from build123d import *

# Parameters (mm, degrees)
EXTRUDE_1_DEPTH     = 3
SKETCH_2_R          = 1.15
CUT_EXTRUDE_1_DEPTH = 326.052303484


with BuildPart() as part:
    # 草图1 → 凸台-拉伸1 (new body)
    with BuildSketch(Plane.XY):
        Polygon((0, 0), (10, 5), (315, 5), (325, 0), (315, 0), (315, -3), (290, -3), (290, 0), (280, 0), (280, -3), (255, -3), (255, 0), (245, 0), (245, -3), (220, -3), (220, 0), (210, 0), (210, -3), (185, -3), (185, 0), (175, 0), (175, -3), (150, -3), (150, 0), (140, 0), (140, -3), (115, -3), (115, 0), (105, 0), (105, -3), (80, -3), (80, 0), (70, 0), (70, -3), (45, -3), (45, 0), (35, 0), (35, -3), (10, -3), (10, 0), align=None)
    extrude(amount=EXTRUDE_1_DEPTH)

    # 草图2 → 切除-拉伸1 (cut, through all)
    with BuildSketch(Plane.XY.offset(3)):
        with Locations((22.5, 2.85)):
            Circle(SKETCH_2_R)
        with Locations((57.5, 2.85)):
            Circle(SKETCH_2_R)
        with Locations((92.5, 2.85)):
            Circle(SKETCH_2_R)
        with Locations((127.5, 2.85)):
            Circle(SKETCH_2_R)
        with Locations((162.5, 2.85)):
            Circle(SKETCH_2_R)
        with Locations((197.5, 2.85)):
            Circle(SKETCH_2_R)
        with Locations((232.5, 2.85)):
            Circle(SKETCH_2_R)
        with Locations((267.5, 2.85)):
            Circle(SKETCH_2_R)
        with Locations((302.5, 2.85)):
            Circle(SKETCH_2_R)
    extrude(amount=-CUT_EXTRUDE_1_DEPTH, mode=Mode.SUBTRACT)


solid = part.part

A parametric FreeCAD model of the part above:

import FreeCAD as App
import Part
import Sketcher

V = App.Vector
Q = App.Units.Quantity

doc = App.newDocument("Part")
params = doc.addObject("Spreadsheet::Sheet", "Params")
for row, (alias, value) in enumerate([
    ("sketch1_width", "10 mm"),
    ("sketch1_width2", "25 mm"),
    ("sketch1_height", "3 mm"),
    ("pad1_length", "3 mm"),
    ("sketch2_diameter", "2.3 mm"),
], start=1):
    params.set(f"A{row}", alias)
    params.set(f"B{row}", "=" + value)
    params.setAlias(f"B{row}", alias)

body = doc.addObject("PartDesign::Body", "Body")

# Sketch on XY plane
sketch1 = body.newObject("Sketcher::SketchObject", "Sketch")
sketch1.AttachmentSupport = (doc.getObject("XY_Plane"), [""])
sketch1.MapMode = "FlatFace"
sketch1.addGeometry([
    Part.LineSegment(V(10, 5, 0), V(0, 0, 0)),  # 0
    Part.LineSegment(V(0, 0, 0), V(10, 0, 0)),  # 1
    Part.LineSegment(V(10, 0, 0), V(10, -3, 0)),  # 2
    Part.LineSegment(V(10, -3, 0), V(35, -3, 0)),  # 3
    Part.LineSegment(V(35, -3, 0), V(35, 0, 0)),  # 4
    Part.LineSegment(V(35, 0, 0), V(45, 0, 0)),  # 5
    Part.LineSegment(V(45, 0, 0), V(45, -3, 0)),  # 6
    Part.LineSegment(V(45, -3, 0), V(70, -3, 0)),  # 7
    Part.LineSegment(V(70, -3, 0), V(70, 0, 0)),  # 8
    Part.LineSegment(V(70, 0, 0), V(80, 0, 0)),  # 9
    Part.LineSegment(V(80, 0, 0), V(80, -3, 0)),  # 10
    Part.LineSegment(V(80, -3, 0), V(105, -3, 0)),  # 11
    Part.LineSegment(V(105, -3, 0), V(105, 0, 0)),  # 12
    Part.LineSegment(V(105, 0, 0), V(115, 0, 0)),  # 13
    Part.LineSegment(V(115, 0, 0), V(115, -3, 0)),  # 14
    Part.LineSegment(V(115, -3, 0), V(140, -3, 0)),  # 15
    Part.LineSegment(V(140, -3, 0), V(140, 0, 0)),  # 16
    Part.LineSegment(V(140, 0, 0), V(150, 0, 0)),  # 17
    Part.LineSegment(V(150, 0, 0), V(150, -3, 0)),  # 18
    Part.LineSegment(V(150, -3, 0), V(175, -3, 0)),  # 19
    Part.LineSegment(V(175, -3, 0), V(175, 0, 0)),  # 20
    Part.LineSegment(V(175, 0, 0), V(185, 0, 0)),  # 21
    Part.LineSegment(V(185, 0, 0), V(185, -3, 0)),  # 22
    Part.LineSegment(V(185, -3, 0), V(210, -3, 0)),  # 23
    Part.LineSegment(V(210, -3, 0), V(210, 0, 0)),  # 24
    Part.LineSegment(V(210, 0, 0), V(220, 0, 0)),  # 25
    Part.LineSegment(V(220, 0, 0), V(220, -3, 0)),  # 26
    Part.LineSegment(V(220, -3, 0), V(245, -3, 0)),  # 27
    Part.LineSegment(V(245, -3, 0), V(245, 0, 0)),  # 28
    Part.LineSegment(V(245, 0, 0), V(255, 0, 0)),  # 29
    Part.LineSegment(V(255, 0, 0), V(255, -3, 0)),  # 30
    Part.LineSegment(V(255, -3, 0), V(280, -3, 0)),  # 31
    Part.LineSegment(V(280, -3, 0), V(280, 0, 0)),  # 32
    Part.LineSegment(V(280, 0, 0), V(290, 0, 0)),  # 33
    Part.LineSegment(V(290, 0, 0), V(290, -3, 0)),  # 34
    Part.LineSegment(V(290, -3, 0), V(315, -3, 0)),  # 35
    Part.LineSegment(V(315, -3, 0), V(315, 0, 0)),  # 36
    Part.LineSegment(V(315, 0, 0), V(325, 0, 0)),  # 37
    Part.LineSegment(V(325, 0, 0), V(315, 5, 0)),  # 38
    Part.LineSegment(V(315, 5, 0), V(10, 5, 0)),  # 39
], False)
sketch1.addConstraint([
    Sketcher.Constraint("Coincident", 0, 2, 1, 1),
    Sketcher.Constraint("Coincident", 1, 2, 2, 1),
    Sketcher.Constraint("Coincident", 2, 2, 3, 1),
    Sketcher.Constraint("Coincident", 3, 2, 4, 1),
    Sketcher.Constraint("Coincident", 4, 2, 5, 1),
    Sketcher.Constraint("Coincident", 5, 2, 6, 1),
    Sketcher.Constraint("Coincident", 6, 2, 7, 1),
    Sketcher.Constraint("Coincident", 7, 2, 8, 1),
    Sketcher.Constraint("Coincident", 8, 2, 9, 1),
    Sketcher.Constraint("Coincident", 9, 2, 10, 1),
    Sketcher.Constraint("Coincident", 10, 2, 11, 1),
    Sketcher.Constraint("Coincident", 11, 2, 12, 1),
    Sketcher.Constraint("Coincident", 12, 2, 13, 1),
    Sketcher.Constraint("Coincident", 13, 2, 14, 1),
    Sketcher.Constraint("Coincident", 14, 2, 15, 1),
    Sketcher.Constraint("Coincident", 15, 2, 16, 1),
    Sketcher.Constraint("Coincident", 16, 2, 17, 1),
    Sketcher.Constraint("Coincident", 17, 2, 18, 1),
    Sketcher.Constraint("Coincident", 18, 2, 19, 1),
    Sketcher.Constraint("Coincident", 19, 2, 20, 1),
    Sketcher.Constraint("Coincident", 20, 2, 21, 1),
    Sketcher.Constraint("Coincident", 21, 2, 22, 1),
    Sketcher.Constraint("Coincident", 22, 2, 23, 1),
    Sketcher.Constraint("Coincident", 23, 2, 24, 1),
    Sketcher.Constraint("Coincident", 24, 2, 25, 1),
    Sketcher.Constraint("Coincident", 25, 2, 26, 1),
    Sketcher.Constraint("Coincident", 26, 2, 27, 1),
    Sketcher.Constraint("Coincident", 27, 2, 28, 1),
    Sketcher.Constraint("Coincident", 28, 2, 29, 1),
    Sketcher.Constraint("Coincident", 29, 2, 30, 1),
    Sketcher.Constraint("Coincident", 30, 2, 31, 1),
    Sketcher.Constraint("Coincident", 31, 2, 32, 1),
    Sketcher.Constraint("Coincident", 32, 2, 33, 1),
    Sketcher.Constraint("Coincident", 33, 2, 34, 1),
    Sketcher.Constraint("Coincident", 34, 2, 35, 1),
    Sketcher.Constraint("Coincident", 35, 2, 36, 1),
    Sketcher.Constraint("Coincident", 36, 2, 37, 1),
    Sketcher.Constraint("Coincident", 37, 2, 38, 1),
    Sketcher.Constraint("Coincident", 38, 2, 39, 1),
    Sketcher.Constraint("Coincident", 39, 2, 0, 1),
    Sketcher.Constraint("Horizontal", 1),
    Sketcher.Constraint("Vertical", 2),
    Sketcher.Constraint("Horizontal", 3),
    Sketcher.Constraint("Vertical", 4),
    Sketcher.Constraint("Horizontal", 5),
    Sketcher.Constraint("Vertical", 6),
    Sketcher.Constraint("Horizontal", 7),
    Sketcher.Constraint("Vertical", 8),
    Sketcher.Constraint("Horizontal", 9),
    Sketcher.Constraint("Vertical", 10),
    Sketcher.Constraint("Horizontal", 11),
    Sketcher.Constraint("Vertical", 12),
    Sketcher.Constraint("Horizontal", 13),
    Sketcher.Constraint("Vertical", 14),
    Sketcher.Constraint("Horizontal", 15),
    Sketcher.Constraint("Vertical", 16),
    Sketcher.Constraint("Horizontal", 17),
    Sketcher.Constraint("Vertical", 18),
    Sketcher.Constraint("Horizontal", 19),
    Sketcher.Constraint("Vertical", 20),
    Sketcher.Constraint("Horizontal", 21),
    Sketcher.Constraint("Vertical", 22),
    Sketcher.Constraint("Horizontal", 23),
    Sketcher.Constraint("Vertical", 24),
    Sketcher.Constraint("Horizontal", 25),
    Sketcher.Constraint("Vertical", 26),
    Sketcher.Constraint("Horizontal", 27),
    Sketcher.Constraint("Vertical", 28),
    Sketcher.Constraint("Horizontal", 29),
    Sketcher.Constraint("Vertical", 30),
    Sketcher.Constraint("Horizontal", 31),
    Sketcher.Constraint("Vertical", 32),
    Sketcher.Constraint("Horizontal", 33),
    Sketcher.Constraint("Vertical", 34),
    Sketcher.Constraint("Horizontal", 35),
    Sketcher.Constraint("Vertical", 36),
    Sketcher.Constraint("Horizontal", 37),
    Sketcher.Constraint("Horizontal", 39),
    Sketcher.Constraint("Coincident", 0, 2, -1, 1),
    Sketcher.Constraint("PointOnObject", 4, 2, -1),
    Sketcher.Constraint("PointOnObject", 8, 2, -1),
    Sketcher.Constraint("PointOnObject", 12, 2, -1),
    Sketcher.Constraint("PointOnObject", 16, 2, -1),
    Sketcher.Constraint("PointOnObject", 20, 2, -1),
    Sketcher.Constraint("PointOnObject", 24, 2, -1),
    Sketcher.Constraint("PointOnObject", 28, 2, -1),
    Sketcher.Constraint("PointOnObject", 32, 2, -1),
    Sketcher.Constraint("PointOnObject", 36, 2, -1),
    Sketcher.Constraint("Horizontal", 3, 2, 6, 2),
    Sketcher.Constraint("Horizontal", 7, 2, 10, 2),
    Sketcher.Constraint("Horizontal", 11, 2, 14, 2),
    Sketcher.Constraint("Horizontal", 15, 2, 18, 2),
    Sketcher.Constraint("Horizontal", 19, 2, 22, 2),
    Sketcher.Constraint("Horizontal", 23, 2, 26, 2),
    Sketcher.Constraint("Horizontal", 27, 2, 30, 2),
    Sketcher.Constraint("Horizontal", 31, 2, 34, 2),
    Sketcher.Constraint("Vertical", 36, 2, 38, 2),
    Sketcher.Constraint("Vertical", 2, 2, 39, 2),
    Sketcher.Constraint("Equal", 1, 5),
    Sketcher.Constraint("Equal", 3, 7),
    Sketcher.Constraint("Equal", 5, 9),
    Sketcher.Constraint("Equal", 7, 11),
    Sketcher.Constraint("Equal", 9, 13),
    Sketcher.Constraint("Equal", 11, 15),
    Sketcher.Constraint("Equal", 13, 17),
    Sketcher.Constraint("Equal", 15, 19),
    Sketcher.Constraint("Equal", 17, 21),
    Sketcher.Constraint("Equal", 19, 23),
    Sketcher.Constraint("Equal", 21, 25),
    Sketcher.Constraint("Equal", 23, 27),
    Sketcher.Constraint("Equal", 25, 29),
    Sketcher.Constraint("Equal", 27, 31),
    Sketcher.Constraint("Equal", 29, 33),
    Sketcher.Constraint("Equal", 31, 35),
    Sketcher.Constraint("Equal", 33, 37),
    Sketcher.Constraint("DistanceX", 1, 1, 1, 2, Q("10 mm")),
    Sketcher.Constraint("DistanceX", 3, 1, 3, 2, Q("25 mm")),
    Sketcher.Constraint("DistanceY", 2, 2, 2, 1, Q("3 mm")),
    Sketcher.Constraint("DistanceY", -1, 1, 38, 2, Q("5 mm")),
])
sketch1.setExpression("Constraints[115]", "Params.sketch1_width")
sketch1.setExpression("Constraints[116]", "Params.sketch1_width2")
sketch1.setExpression("Constraints[117]", "Params.sketch1_height")
pad1 = body.newObject("PartDesign::Pad", "Pad")
pad1.Profile = sketch1
pad1.setExpression("Length", "Params.pad1_length")

# Sketch on XY plane
sketch2 = body.newObject("Sketcher::SketchObject", "Sketch001")
sketch2.AttachmentSupport = (doc.getObject("XY_Plane"), [""])
sketch2.MapMode = "FlatFace"
sketch2.AttachmentOffset = App.Placement(V(0, 0, 3), App.Rotation())
sketch2.addGeometry([
    Part.Circle(V(22.5, 2.9, 0), V(0, 0, 1), 1.1),  # 0
    Part.Circle(V(57.5, 2.9, 0), V(0, 0, 1), 1.1),  # 1
    Part.Circle(V(92.5, 2.9, 0), V(0, 0, 1), 1.1),  # 2
    Part.Circle(V(127.5, 2.9, 0), V(0, 0, 1), 1.1),  # 3
    Part.Circle(V(162.5, 2.9, 0), V(0, 0, 1), 1.1),  # 4
    Part.Circle(V(197.5, 2.9, 0), V(0, 0, 1), 1.1),  # 5
    Part.Circle(V(232.5, 2.9, 0), V(0, 0, 1), 1.1),  # 6
    Part.Circle(V(267.5, 2.9, 0), V(0, 0, 1), 1.1),  # 7
    Part.Circle(V(302.5, 2.9, 0), V(0, 0, 1), 1.1),  # 8
], False)
sketch2.addConstraint([
    Sketcher.Constraint("Equal", 0, 1),
    Sketcher.Constraint("Equal", 1, 2),
    Sketcher.Constraint("Equal", 2, 3),
    Sketcher.Constraint("Equal", 3, 4),
    Sketcher.Constraint("Equal", 4, 5),
    Sketcher.Constraint("Equal", 5, 6),
    Sketcher.Constraint("Equal", 6, 7),
    Sketcher.Constraint("Equal", 7, 8),
    Sketcher.Constraint("Horizontal", 0, 3, 1, 3),
    Sketcher.Constraint("Horizontal", 1, 3, 2, 3),
    Sketcher.Constraint("Horizontal", 2, 3, 3, 3),
    Sketcher.Constraint("Horizontal", 3, 3, 4, 3),
    Sketcher.Constraint("Horizontal", 4, 3, 5, 3),
    Sketcher.Constraint("Horizontal", 5, 3, 6, 3),
    Sketcher.Constraint("Horizontal", 6, 3, 7, 3),
    Sketcher.Constraint("Horizontal", 7, 3, 8, 3),
    Sketcher.Constraint("Diameter", 0, Q("2.3 mm")),
    Sketcher.Constraint("DistanceX", 0, 3, 1, 3, Q("35 mm")),
    Sketcher.Constraint("DistanceX", 1, 3, 2, 3, Q("35 mm")),
    Sketcher.Constraint("DistanceX", 2, 3, 3, 3, Q("35 mm")),
    Sketcher.Constraint("DistanceX", 3, 3, 4, 3, Q("35 mm")),
    Sketcher.Constraint("DistanceX", 4, 3, 5, 3, Q("35 mm")),
    Sketcher.Constraint("DistanceX", 5, 3, 6, 3, Q("35 mm")),
    Sketcher.Constraint("DistanceX", 6, 3, 7, 3, Q("35 mm")),
    Sketcher.Constraint("DistanceX", 7, 3, 8, 3, Q("35 mm")),
    Sketcher.Constraint("DistanceX", -1, 1, 0, 3, Q("22.5 mm")),
    Sketcher.Constraint("DistanceY", -1, 1, 0, 3, Q("2.85 mm")),
])
sketch2.setExpression("Constraints[16]", "Params.sketch2_diameter")
pocket1 = body.newObject("PartDesign::Pocket", "Pocket")
pocket1.Profile = sketch2
pocket1.Type = "ThroughAll"

doc.recompute()
